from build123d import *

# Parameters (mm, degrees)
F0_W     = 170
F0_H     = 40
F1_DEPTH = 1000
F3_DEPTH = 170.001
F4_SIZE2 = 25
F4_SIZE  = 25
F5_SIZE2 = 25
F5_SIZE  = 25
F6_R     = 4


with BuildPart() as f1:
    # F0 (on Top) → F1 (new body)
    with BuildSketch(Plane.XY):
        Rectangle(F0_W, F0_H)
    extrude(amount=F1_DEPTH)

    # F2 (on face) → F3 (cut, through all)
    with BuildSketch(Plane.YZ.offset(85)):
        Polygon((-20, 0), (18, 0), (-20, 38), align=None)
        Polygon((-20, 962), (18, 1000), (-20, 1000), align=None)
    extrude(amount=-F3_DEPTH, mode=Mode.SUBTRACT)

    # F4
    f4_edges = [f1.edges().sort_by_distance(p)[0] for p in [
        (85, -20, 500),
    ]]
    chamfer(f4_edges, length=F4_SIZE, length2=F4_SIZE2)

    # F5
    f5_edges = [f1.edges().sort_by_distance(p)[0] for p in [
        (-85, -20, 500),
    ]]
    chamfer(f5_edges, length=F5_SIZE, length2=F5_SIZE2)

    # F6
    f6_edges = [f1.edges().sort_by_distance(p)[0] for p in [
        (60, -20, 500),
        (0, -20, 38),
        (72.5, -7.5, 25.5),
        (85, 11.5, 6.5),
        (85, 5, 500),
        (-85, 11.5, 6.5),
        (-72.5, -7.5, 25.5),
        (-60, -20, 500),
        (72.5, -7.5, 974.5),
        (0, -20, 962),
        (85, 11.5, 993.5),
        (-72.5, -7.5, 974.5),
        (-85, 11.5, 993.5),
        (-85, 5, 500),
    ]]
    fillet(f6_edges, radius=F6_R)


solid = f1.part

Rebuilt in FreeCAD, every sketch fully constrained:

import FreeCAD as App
import Part
import Sketcher

V = App.Vector


def edges_at(feature, points):
    """Names of the edges that pass closest to the given points."""
    edges = feature.Shape.Edges
    near = lambda p: min(range(len(edges)), key=lambda i: edges[i].distToShape(Part.Vertex(*p))[0])
    return sorted({f"Edge{near(p) + 1}" for p in points})

doc = App.newDocument("Part")
body = doc.addObject("PartDesign::Body", "Body")

sketch1 = body.newObject("Sketcher::SketchObject", "Sketch")
sketch1.AttachmentSupport = (doc.getObject("XY_Plane"), [""])
sketch1.MapMode = "FlatFace"
sketch1.addGeometry([
    Part.LineSegment(V(-85, 20, 0), V(-85, -20, 0)),
    Part.LineSegment(V(-85, -20, 0), V(85, -20, 0)),
    Part.LineSegment(V(85, -20, 0), V(85, 20, 0)),
    Part.LineSegment(V(85, 20, 0), V(-85, 20, 0)),
], False)
sketch1.addConstraint([
    Sketcher.Constraint("Coincident", 0, 2, 1, 1),
    Sketcher.Constraint("Coincident", 1, 2, 2, 1),
    Sketcher.Constraint("Coincident", 2, 2, 3, 1),
    Sketcher.Constraint("Coincident", 3, 2, 0, 1),
    Sketcher.Constraint("Vertical", 0),
    Sketcher.Constraint("Horizontal", 1),
    Sketcher.Constraint("Vertical", 2),
    Sketcher.Constraint("Horizontal", 3),
    Sketcher.Constraint("Symmetric", 0, 2, 2, 2, -1, 1),
    Sketcher.Constraint("DistanceX", 1, 1, 1, 2, 170.0),
    Sketcher.Constraint("DistanceY", 0, 2, 0, 1, 40.0),
])
pad1 = body.newObject("PartDesign::Pad", "Pad")
pad1.Profile = sketch1
pad1.Length = 1000

sketch2 = body.newObject("Sketcher::SketchObject", "Sketch001")
sketch2.AttachmentSupport = (doc.getObject("YZ_Plane"), [""])
sketch2.MapMode = "FlatFace"
sketch2.AttachmentOffset = App.Placement(V(0, 0, 85), App.Rotation())
sketch2.addGeometry([
    Part.LineSegment(V(-20, 0, 0), V(18, 0, 0)),
    Part.LineSegment(V(18, 0, 0), V(-20, 38, 0)),
    Part.LineSegment(V(-20, 38, 0), V(-20, 0, 0)),
    Part.LineSegment(V(-20, 962, 0), V(18, 1000, 0)),
    Part.LineSegment(V(18, 1000, 0), V(-20, 1000, 0)),
    Part.LineSegment(V(-20, 1000, 0), V(-20, 962, 0)),
], False)
sketch2.addConstraint([
    Sketcher.Constraint("Coincident", 0, 2, 1, 1),
    Sketcher.Constraint("Coincident", 1, 2, 2, 1),
    Sketcher.Constraint("Coincident", 2, 2, 0, 1),
    Sketcher.Constraint("Coincident", 3, 2, 4, 1),
    Sketcher.Constraint("Coincident", 4, 2, 5, 1),
    Sketcher.Constraint("Coincident", 5, 2, 3, 1),
    Sketcher.Constraint("Horizontal", 0),
    Sketcher.Constraint("Vertical", 2),
    Sketcher.Constraint("Horizontal", 4),
    Sketcher.Constraint("Vertical", 5),
    Sketcher.Constraint("PointOnObject", 0, 2, -1),
    Sketcher.Constraint("Perpendicular", 1, 3),
    Sketcher.Constraint("Vertical", 0, 2, 3, 2),
    Sketcher.Constraint("Vertical", 2, 2, 4, 2),
    Sketcher.Constraint("Equal", 4, 2),
    Sketcher.Constraint("DistanceX", 0, 1, 0, 2, 38.0),
    Sketcher.Constraint("DistanceX", -1, 1, 0, 2, 18.0),
    Sketcher.Constraint("DistanceY", -1, 1, 3, 2, 1000.0),
])
pocket1 = body.newObject("PartDesign::Pocket", "Pocket")
pocket1.Profile = sketch2
pocket1.Type = "ThroughAll"
doc.recompute()

chamfer = body.newObject("PartDesign::Chamfer", "Chamfer")
chamfer.Base = (pocket1, edges_at(pocket1, [(85, -20, 500)]))
chamfer.ChamferType = "Two distances"
chamfer.Size = 25
chamfer.Size2 = 25
doc.recompute()

chamfer2 = body.newObject("PartDesign::Chamfer", "Chamfer001")
chamfer2.Base = (chamfer, edges_at(chamfer, [(-85, -20, 500)]))
chamfer2.ChamferType = "Two distances"
chamfer2.Size = 25
chamfer2.Size2 = 25
doc.recompute()

fillet = body.newObject("PartDesign::Fillet", "Fillet")
fillet.Base = (chamfer2, edges_at(chamfer2, [
    (60, -20, 500),
    (0, -20, 38),
    (72.5, -7.5, 25.5),
    (85, 11.5, 6.5),
    (85, 5, 500),
    (-85, 11.5, 6.5),
    (-72.5, -7.5, 25.5),
    (-60, -20, 500),
    (72.5, -7.5, 974.5),
    (0, -20, 962),
    (85, 11.5, 993.5),
    (-72.5, -7.5, 974.5),
    (-85, 11.5, 993.5),
    (-85, 5, 500),
]))
fillet.Radius = 4

doc.recompute()
